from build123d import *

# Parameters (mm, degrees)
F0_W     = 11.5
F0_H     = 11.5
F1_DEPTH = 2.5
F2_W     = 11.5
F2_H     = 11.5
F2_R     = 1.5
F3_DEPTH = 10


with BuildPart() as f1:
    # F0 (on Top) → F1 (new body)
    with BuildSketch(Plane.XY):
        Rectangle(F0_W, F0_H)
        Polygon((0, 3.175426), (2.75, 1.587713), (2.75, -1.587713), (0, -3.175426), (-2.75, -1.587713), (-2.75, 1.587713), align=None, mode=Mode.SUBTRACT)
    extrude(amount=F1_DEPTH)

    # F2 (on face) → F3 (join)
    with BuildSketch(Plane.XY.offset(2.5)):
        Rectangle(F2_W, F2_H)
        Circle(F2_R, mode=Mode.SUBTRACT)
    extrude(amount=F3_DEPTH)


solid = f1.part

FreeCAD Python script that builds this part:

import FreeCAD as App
import Part
import Sketcher
from FreeCAD import Vector
Q = App.Units.Quantity

doc = App.newDocument("Part")
body = doc.addObject("PartDesign::Body", "Body")

# Sketch on XY plane
sketch1 = doc.addObject("Sketcher::SketchObject", "Sketch")
body.addObject(sketch1)
sketch1.AttachmentSupport = (doc.XY_Plane, [""])
sketch1.MapMode = "FlatFace"
sketch1.addGeometry([
    Part.LineSegment(Vector(-5.8, 5.8, 0), Vector(-5.8, -5.8, 0)),  # 0
    Part.LineSegment(Vector(-5.8, -5.8, 0), Vector(5.8, -5.8, 0)),  # 1
    Part.LineSegment(Vector(5.8, -5.8, 0), Vector(5.8, 5.8, 0)),  # 2
    Part.LineSegment(Vector(5.8, 5.8, 0), Vector(-5.8, 5.8, 0)),  # 3
    Part.LineSegment(Vector(-2.8, 1.6, 0), Vector(0, 3.2, 0)),  # 4
    Part.LineSegment(Vector(0, 3.2, 0), Vector(2.8, 1.6, 0)),  # 5
    Part.LineSegment(Vector(2.8, 1.6, 0), Vector(2.8, -1.6, 0)),  # 6
    Part.LineSegment(Vector(2.8, -1.6, 0), Vector(0, -3.2, 0)),  # 7
    Part.LineSegment(Vector(0, -3.2, 0), Vector(-2.8, -1.6, 0)),  # 8
    Part.LineSegment(Vector(-2.8, -1.6, 0), Vector(-2.8, 1.6, 0)),  # 9
], False)
sketch1.addConstraint([
    Sketcher.Constraint("Coincident", 0, 2, 1, 1),
    Sketcher.Constraint("Coincident", 1, 2, 2, 1),
    Sketcher.Constraint("Coincident", 2, 2, 3, 1),
    Sketcher.Constraint("Coincident", 3, 2, 0, 1),
    Sketcher.Constraint("Coincident", 4, 2, 5, 1),
    Sketcher.Constraint("Coincident", 5, 2, 6, 1),
    Sketcher.Constraint("Coincident", 6, 2, 7, 1),
    Sketcher.Constraint("Coincident", 7, 2, 8, 1),
    Sketcher.Constraint("Coincident", 8, 2, 9, 1),
    Sketcher.Constraint("Coincident", 9, 2, 4, 1),
    Sketcher.Constraint("Vertical", 0),
    Sketcher.Constraint("Horizontal", 1),
    Sketcher.Constraint("Vertical", 2),
    Sketcher.Constraint("Horizontal", 3),
    Sketcher.Constraint("Vertical", 6),
    Sketcher.Constraint("Vertical", 9),
    Sketcher.Constraint("Symmetric", 0, 2, 2, 2, -1, 1),
    Sketcher.Constraint("Symmetric", 4, 2, 7, 2, -1, 1),
    Sketcher.Constraint("Symmetric", 5, 2, 8, 2, -1, 1),
    Sketcher.Constraint("PointOnObject", 4, 2, -2),
    Sketcher.Constraint("Parallel", 4, 7),
    Sketcher.Constraint("Horizontal", 6, 2, 8, 2),
    Sketcher.Constraint("Equal", 3, 0),
    Sketcher.Constraint("Angle", 4, Q("29.999996 deg")),
    Sketcher.Constraint("DistanceX", 1, 1, 1, 2, Q("11.5 mm")),
    Sketcher.Constraint("DistanceX", 5, 2, 2, 2, Q("3 mm")),
    Sketcher.Constraint("DistanceY", 6, 2, 6, 1, Q("3.175426 mm")),
])
pad1 = doc.addObject("PartDesign::Pad", "Pad")
body.addObject(pad1)
pad1.Profile = sketch1
pad1.Length = 2.5

# Sketch on XY plane
sketch2 = doc.addObject("Sketcher::SketchObject", "Sketch001")
body.addObject(sketch2)
sketch2.AttachmentSupport = (doc.XY_Plane, [""])
sketch2.MapMode = "FlatFace"
sketch2.AttachmentOffset = App.Placement(Vector(0, 0, 2.5), App.Rotation())
sketch2.addGeometry([
    Part.LineSegment(Vector(-5.8, 5.8, 0), Vector(-5.8, -5.8, 0)),  # 0
    Part.LineSegment(Vector(-5.8, -5.8, 0), Vector(5.8, -5.8, 0)),  # 1
    Part.LineSegment(Vector(5.8, -5.8, 0), Vector(5.8, 5.8, 0)),  # 2
    Part.LineSegment(Vector(5.8, 5.8, 0), Vector(-5.8, 5.8, 0)),  # 3
    Part.Circle(Vector(0, 0, 0), Vector(0, 0, 1), 1.5),  # 4
], False)
sketch2.addConstraint([
    Sketcher.Constraint("Coincident", 0, 2, 1, 1),
    Sketcher.Constraint("Coincident", 1, 2, 2, 1),
    Sketcher.Constraint("Coincident", 2, 2, 3, 1),
    Sketcher.Constraint("Coincident", 3, 2, 0, 1),
    Sketcher.Constraint("Vertical", 0),
    Sketcher.Constraint("Horizontal", 1),
    Sketcher.Constraint("Vertical", 2),
    Sketcher.Constraint("Horizontal", 3),
    Sketcher.Constraint("Coincident", 4, 3, -1, 1),
    Sketcher.Constraint("Symmetric", 0, 2, 2, 2, -1, 1),
    Sketcher.Constraint("Equal", 3, 0),
    Sketcher.Constraint("Diameter", 4, Q("3 mm")),
    Sketcher.Constraint("DistanceX", 1, 1, 1, 2, Q("11.5 mm")),
])
pad2 = doc.addObject("PartDesign::Pad", "Pad001")
body.addObject(pad2)
pad2.Profile = sketch2
pad2.Length = 10

doc.recompute()
